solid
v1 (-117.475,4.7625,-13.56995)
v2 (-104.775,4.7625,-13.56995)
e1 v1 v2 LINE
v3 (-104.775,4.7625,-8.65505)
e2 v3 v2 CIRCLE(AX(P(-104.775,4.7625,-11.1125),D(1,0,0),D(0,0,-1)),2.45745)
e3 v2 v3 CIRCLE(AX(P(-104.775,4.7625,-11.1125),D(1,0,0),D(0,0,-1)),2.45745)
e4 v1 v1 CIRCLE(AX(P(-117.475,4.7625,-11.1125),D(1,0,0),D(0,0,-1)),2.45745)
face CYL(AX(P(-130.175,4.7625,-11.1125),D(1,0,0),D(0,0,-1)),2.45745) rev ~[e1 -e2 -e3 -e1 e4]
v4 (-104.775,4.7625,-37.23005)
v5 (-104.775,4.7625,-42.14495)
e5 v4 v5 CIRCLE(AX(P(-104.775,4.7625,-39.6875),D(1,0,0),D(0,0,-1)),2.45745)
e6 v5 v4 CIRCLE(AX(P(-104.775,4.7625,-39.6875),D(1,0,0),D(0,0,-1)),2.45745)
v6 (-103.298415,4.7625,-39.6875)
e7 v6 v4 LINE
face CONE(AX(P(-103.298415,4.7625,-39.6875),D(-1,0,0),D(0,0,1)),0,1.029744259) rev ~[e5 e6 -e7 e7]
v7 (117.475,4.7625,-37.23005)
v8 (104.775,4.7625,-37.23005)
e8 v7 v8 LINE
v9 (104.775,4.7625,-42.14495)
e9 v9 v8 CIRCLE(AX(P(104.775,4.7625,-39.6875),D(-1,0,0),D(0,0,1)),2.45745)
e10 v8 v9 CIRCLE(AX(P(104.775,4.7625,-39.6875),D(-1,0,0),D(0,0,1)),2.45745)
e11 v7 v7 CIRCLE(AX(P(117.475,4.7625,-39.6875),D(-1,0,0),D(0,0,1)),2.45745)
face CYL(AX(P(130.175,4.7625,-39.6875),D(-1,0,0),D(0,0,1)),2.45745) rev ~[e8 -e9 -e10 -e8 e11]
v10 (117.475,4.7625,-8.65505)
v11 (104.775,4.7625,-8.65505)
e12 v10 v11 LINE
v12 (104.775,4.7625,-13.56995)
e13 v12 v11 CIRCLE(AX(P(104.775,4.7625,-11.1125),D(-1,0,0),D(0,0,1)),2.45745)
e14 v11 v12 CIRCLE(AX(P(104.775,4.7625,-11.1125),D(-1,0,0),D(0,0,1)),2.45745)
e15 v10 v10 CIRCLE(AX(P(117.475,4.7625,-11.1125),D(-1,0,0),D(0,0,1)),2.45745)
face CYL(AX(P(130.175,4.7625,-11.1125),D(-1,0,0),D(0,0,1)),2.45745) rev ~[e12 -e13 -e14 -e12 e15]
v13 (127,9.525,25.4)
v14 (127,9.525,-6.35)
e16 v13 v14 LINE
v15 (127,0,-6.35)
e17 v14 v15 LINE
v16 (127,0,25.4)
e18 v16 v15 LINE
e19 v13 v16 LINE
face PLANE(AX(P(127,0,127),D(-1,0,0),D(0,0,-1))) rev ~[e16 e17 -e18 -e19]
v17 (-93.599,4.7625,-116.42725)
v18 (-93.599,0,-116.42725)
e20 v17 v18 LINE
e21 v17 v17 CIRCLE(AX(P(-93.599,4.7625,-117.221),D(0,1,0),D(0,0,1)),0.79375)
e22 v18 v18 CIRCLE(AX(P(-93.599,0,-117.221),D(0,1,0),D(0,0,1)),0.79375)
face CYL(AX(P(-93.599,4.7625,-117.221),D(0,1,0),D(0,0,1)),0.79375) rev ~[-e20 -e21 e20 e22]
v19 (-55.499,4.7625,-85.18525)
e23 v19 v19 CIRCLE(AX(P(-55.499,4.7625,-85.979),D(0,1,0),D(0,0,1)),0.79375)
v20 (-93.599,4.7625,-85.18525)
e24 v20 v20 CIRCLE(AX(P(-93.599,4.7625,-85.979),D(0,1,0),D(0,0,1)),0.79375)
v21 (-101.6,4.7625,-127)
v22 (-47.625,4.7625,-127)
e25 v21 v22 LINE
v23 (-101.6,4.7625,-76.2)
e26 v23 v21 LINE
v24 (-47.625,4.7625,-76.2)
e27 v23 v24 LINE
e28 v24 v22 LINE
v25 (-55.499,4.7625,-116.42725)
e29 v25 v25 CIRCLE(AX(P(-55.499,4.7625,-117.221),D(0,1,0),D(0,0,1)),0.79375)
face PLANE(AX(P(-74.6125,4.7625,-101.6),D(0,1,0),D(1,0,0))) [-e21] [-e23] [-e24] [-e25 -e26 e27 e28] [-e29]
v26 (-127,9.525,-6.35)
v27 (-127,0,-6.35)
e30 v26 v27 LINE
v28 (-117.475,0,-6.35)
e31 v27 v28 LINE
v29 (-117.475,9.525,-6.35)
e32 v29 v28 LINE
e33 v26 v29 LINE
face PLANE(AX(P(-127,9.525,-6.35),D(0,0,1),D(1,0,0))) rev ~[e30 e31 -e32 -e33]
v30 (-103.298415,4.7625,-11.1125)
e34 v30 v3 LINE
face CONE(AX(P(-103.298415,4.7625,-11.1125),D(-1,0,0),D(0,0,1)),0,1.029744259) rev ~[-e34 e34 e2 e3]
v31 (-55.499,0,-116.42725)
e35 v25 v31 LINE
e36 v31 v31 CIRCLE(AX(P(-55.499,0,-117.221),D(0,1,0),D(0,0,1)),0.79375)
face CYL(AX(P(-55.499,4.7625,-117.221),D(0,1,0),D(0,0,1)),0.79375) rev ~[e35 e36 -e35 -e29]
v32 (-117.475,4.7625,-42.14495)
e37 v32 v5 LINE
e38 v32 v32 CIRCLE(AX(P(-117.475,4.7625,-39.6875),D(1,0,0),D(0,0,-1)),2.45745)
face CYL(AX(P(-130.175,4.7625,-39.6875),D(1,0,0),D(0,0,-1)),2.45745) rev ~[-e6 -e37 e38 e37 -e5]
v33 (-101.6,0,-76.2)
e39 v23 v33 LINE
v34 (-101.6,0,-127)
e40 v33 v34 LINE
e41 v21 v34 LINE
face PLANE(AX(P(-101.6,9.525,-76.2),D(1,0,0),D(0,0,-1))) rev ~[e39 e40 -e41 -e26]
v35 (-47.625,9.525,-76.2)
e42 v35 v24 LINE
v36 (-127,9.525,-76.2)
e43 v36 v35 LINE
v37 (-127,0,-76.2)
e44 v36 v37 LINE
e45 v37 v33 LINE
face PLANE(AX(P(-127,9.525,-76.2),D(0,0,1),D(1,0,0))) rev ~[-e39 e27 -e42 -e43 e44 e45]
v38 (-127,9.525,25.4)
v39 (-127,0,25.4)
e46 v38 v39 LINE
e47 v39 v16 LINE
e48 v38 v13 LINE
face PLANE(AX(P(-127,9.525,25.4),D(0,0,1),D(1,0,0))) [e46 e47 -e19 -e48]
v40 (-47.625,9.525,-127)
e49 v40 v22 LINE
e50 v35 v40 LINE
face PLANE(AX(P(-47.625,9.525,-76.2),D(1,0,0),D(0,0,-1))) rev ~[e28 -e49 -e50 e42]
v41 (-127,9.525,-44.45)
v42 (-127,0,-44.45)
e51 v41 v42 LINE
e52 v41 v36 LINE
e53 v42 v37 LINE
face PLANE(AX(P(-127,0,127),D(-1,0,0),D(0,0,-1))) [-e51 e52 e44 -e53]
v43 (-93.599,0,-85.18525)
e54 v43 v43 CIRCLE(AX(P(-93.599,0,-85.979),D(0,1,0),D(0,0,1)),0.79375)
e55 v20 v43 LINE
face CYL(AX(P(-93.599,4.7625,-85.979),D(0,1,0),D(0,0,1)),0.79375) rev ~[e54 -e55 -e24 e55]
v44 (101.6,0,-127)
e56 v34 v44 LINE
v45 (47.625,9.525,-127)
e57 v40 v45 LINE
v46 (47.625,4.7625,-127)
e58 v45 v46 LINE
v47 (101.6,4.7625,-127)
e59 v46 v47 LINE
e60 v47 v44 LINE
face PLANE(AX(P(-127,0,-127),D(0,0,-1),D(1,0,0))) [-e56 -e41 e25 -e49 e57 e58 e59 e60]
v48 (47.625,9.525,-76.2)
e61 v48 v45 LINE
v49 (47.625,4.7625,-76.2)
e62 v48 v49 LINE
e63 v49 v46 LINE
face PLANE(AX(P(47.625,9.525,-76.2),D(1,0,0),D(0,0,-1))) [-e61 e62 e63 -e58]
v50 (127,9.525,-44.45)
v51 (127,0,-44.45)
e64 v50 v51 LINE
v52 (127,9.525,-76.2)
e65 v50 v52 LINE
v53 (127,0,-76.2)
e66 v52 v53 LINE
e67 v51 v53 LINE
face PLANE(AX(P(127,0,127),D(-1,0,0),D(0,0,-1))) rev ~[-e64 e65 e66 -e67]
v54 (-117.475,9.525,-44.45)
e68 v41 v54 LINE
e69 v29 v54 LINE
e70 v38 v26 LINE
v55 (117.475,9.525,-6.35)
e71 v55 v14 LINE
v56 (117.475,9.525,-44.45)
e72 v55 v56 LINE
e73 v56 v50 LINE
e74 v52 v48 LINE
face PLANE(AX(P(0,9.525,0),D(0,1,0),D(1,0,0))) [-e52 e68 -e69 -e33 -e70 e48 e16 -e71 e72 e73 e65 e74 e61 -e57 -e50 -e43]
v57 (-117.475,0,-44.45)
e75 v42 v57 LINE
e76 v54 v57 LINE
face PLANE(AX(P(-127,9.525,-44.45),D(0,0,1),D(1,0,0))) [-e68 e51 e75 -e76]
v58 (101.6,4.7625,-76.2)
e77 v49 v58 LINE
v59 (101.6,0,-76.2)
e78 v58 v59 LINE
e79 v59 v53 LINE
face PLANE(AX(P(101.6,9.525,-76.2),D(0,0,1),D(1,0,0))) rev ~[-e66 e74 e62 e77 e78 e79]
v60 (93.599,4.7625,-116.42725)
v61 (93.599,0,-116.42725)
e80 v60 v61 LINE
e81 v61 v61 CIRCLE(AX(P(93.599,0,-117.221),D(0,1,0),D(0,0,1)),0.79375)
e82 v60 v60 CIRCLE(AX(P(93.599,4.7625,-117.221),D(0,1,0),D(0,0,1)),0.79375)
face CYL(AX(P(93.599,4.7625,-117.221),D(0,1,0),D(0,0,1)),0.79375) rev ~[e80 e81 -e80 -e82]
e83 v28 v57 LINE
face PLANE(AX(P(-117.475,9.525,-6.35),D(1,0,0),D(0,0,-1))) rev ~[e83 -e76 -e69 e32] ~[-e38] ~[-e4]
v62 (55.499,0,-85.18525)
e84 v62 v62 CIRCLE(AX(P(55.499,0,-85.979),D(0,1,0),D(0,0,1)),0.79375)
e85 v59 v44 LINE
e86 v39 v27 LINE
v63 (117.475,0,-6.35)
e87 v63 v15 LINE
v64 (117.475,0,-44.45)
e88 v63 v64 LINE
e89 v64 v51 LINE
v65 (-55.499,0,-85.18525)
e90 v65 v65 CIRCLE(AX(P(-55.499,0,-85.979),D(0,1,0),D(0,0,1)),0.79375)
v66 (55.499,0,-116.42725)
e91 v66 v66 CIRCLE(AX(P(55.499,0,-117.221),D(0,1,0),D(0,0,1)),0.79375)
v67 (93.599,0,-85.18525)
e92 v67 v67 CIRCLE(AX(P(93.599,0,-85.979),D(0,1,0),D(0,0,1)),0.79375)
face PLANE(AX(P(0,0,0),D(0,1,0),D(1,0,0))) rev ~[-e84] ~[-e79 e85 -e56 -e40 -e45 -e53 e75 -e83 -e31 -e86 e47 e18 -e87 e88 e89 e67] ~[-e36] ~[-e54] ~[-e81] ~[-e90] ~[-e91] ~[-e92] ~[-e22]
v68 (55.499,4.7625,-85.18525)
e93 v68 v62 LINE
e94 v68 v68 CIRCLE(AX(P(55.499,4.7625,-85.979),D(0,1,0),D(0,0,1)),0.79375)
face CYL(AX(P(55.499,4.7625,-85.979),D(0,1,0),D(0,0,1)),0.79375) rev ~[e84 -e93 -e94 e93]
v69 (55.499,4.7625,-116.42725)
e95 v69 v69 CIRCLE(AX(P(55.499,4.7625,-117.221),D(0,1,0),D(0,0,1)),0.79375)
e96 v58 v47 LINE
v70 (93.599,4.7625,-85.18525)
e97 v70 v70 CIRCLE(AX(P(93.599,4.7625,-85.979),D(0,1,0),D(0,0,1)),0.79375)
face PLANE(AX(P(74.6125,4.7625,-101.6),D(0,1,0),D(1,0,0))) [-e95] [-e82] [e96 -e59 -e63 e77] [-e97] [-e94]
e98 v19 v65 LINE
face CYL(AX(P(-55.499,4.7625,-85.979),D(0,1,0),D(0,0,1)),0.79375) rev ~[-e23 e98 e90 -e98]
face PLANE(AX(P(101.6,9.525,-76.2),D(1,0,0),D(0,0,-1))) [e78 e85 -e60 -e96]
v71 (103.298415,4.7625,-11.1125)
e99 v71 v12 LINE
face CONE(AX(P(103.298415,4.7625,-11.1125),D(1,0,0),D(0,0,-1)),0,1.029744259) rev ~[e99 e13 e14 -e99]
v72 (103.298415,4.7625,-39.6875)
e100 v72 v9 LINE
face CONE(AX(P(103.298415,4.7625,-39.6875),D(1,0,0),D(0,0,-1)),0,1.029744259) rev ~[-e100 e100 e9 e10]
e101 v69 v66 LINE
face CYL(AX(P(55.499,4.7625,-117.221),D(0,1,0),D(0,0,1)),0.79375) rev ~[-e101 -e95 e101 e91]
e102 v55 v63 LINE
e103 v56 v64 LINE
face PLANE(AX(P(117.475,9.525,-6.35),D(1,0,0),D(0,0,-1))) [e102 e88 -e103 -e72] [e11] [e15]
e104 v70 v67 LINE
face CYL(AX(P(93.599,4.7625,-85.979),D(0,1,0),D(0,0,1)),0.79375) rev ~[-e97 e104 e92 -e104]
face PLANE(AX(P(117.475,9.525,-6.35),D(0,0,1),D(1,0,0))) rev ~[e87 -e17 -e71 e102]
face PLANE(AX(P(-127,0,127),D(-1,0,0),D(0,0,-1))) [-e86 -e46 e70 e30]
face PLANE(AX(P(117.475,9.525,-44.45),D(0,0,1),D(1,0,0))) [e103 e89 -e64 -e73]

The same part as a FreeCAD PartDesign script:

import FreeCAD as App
import Part
import Sketcher
Q = App.Units.Quantity


def add_polygon(sketch, points):
    """Adds a closed chain of lines whose ends are joined by coincident constraints."""
    first, n = sketch.GeometryCount, len(points)
    for a, b in zip(points, points[1:] + points[:1]):
        sketch.addGeometry(Part.LineSegment(App.Vector(*a, 0), App.Vector(*b, 0)), False)
    for i in range(n):
        sketch.addConstraint(Sketcher.Constraint("Coincident", first + i, 2, first + (i + 1) % n, 1))

doc = App.newDocument("Part")
params = doc.addObject("Spreadsheet::Sheet", "Params")
for row, (alias, value) in enumerate([
    ("sketch1_width", "10 in"),
    ("pad1_length", "0.375 in"),
    ("sketch2_width", "1 in"),
    ("sketch2_height", "2 in"),
    ("sketch3_height", "2 in"),
    ("sketch3_width", "2.125 in"),
    ("pocket2_length", "0.1875 in"),
    ("sketch4_height", "1.5 in"),
    ("sketch4_width", "0.375 in"),
    ("hole_diameter", "0.1935 in"),
    ("hole_depth", "0.5 in"),
    ("hole2_diameter", "0.1935 in"),
    ("hole2_depth", "0.5 in"),
    ("sketch7_diameter", "0.0625 in"),
    ("sketch8_width", "10 in"),
    ("sketch8_height", "4 in"),
], start=1):
    params.set(f"A{row}", alias)
    params.set(f"B{row}", "=" + value)
    params.setAlias(f"B{row}", alias)

body = doc.addObject("PartDesign::Body", "Body")

sketch1 = body.newObject("Sketcher::SketchObject", "Sketch")
sketch1.AttachmentSupport = (doc.getObject("XZ_Plane"), [""])
sketch1.MapMode = "FlatFace"
add_polygon(sketch1, [(-127, -127), (-127, 127), (127, 127), (127, -127)])
sketch1.addConstraint([
    Sketcher.Constraint("Vertical", 0),
    Sketcher.Constraint("Horizontal", 1),
    Sketcher.Constraint("Vertical", 2),
    Sketcher.Constraint("Horizontal", 3),
    Sketcher.Constraint("Symmetric", 0, 2, 2, 2, -1, 1),
    Sketcher.Constraint("Equal", 3, 0),
    Sketcher.Constraint("DistanceX", 1, 1, 1, 2, Q("10 in")),
])
sketch1.setExpression("Constraints[10]", "Params.sketch1_width")
pad1 = body.newObject("PartDesign::Pad", "Pad")
pad1.Profile = sketch1
pad1.setExpression("Length", "Params.pad1_length")
pad1.Reversed = True

sketch2 = body.newObject("Sketcher::SketchObject", "Sketch001")
sketch2.AttachmentSupport = (doc.getObject("XZ_Plane"), [""])
sketch2.MapMode = "FlatFace"
sketch2.AttachmentOffset = App.Placement(App.Vector(0, 0, -0.375 * 25.4), App.Rotation())
add_polygon(sketch2, [(-127, -127), (-127, -76), (-102, -76), (-102, -127)])
add_polygon(sketch2, [(102, -127), (102, -76), (127, -76), (127, -127)])
sketch2.addConstraint([
    Sketcher.Constraint("Vertical", 0),
    Sketcher.Constraint("Horizontal", 1),
    Sketcher.Constraint("Vertical", 2),
    Sketcher.Constraint("Horizontal", 3),
    Sketcher.Constraint("Vertical", 4),
    Sketcher.Constraint("Horizontal", 5),
    Sketcher.Constraint("Vertical", 6),
    Sketcher.Constraint("Horizontal", 7),
    Sketcher.Constraint("Symmetric", 1, 2, 4, 2, -2),
    Sketcher.Constraint("Symmetric", 3, 2, 6, 2, -2),
    Sketcher.Constraint("DistanceX", 1, 1, 1, 2, Q("1 in")),
    Sketcher.Constraint("DistanceY", 0, 1, 0, 2, Q("2 in")),
    Sketcher.Constraint("DistanceX", 0, 2, -1, 1, Q("5 in")),
    Sketcher.Constraint("DistanceY", 0, 2, -1, 1, Q("3 in")),
])
sketch2.setExpression("Constraints[18]", "Params.sketch2_width")
sketch2.setExpression("Constraints[19]", "Params.sketch2_height")
pocket1 = body.newObject("PartDesign::Pocket", "Pocket")
pocket1.Profile = sketch2
pocket1.Type = "ThroughAll"
pocket1.Reversed = True

sketch3 = body.newObject("Sketcher::SketchObject", "Sketch002")
sketch3.AttachmentSupport = (doc.getObject("XZ_Plane"), [""])
sketch3.MapMode = "FlatFace"
sketch3.AttachmentOffset = App.Placement(App.Vector(0, 0, -0.375 * 25.4), App.Rotation())
add_polygon(sketch3, [(-102, -127), (-102, -76), (-48, -76), (-48, -127)])
add_polygon(sketch3, [(48, -127), (48, -76), (102, -76), (102, -127)])
sketch3.addConstraint([
    Sketcher.Constraint("Vertical", 0),
    Sketcher.Constraint("Horizontal", 1),
    Sketcher.Constraint("Vertical", 2),
    Sketcher.Constraint("Horizontal", 3),
    Sketcher.Constraint("Vertical", 4),
    Sketcher.Constraint("Horizontal", 5),
    Sketcher.Constraint("Vertical", 6),
    Sketcher.Constraint("Horizontal", 7),
    Sketcher.Constraint("Symmetric", 1, 2, 4, 2, -2),
    Sketcher.Constraint("Symmetric", 3, 2, 6, 2, -2),
    Sketcher.Constraint("DistanceY", 0, 1, 0, 2, Q("2 in")),
    Sketcher.Constraint("DistanceX", 0, 2, -1, 1, Q("4 in")),
    Sketcher.Constraint("DistanceY", 0, 2, -1, 1, Q("3 in")),
    Sketcher.Constraint("DistanceX", 1, 1, 1, 2, Q("2.125 in")),
])
sketch3.setExpression("Constraints[18]", "Params.sketch3_height")
sketch3.setExpression("Constraints[21]", "Params.sketch3_width")
pocket2 = body.newObject("PartDesign::Pocket", "Pocket001")
pocket2.Profile = sketch3
pocket2.setExpression("Length", "Params.pocket2_length")
pocket2.Reversed = True

sketch4 = body.newObject("Sketcher::SketchObject", "Sketch003")
sketch4.AttachmentSupport = (doc.getObject("XZ_Plane"), [""])
sketch4.MapMode = "FlatFace"
sketch4.AttachmentOffset = App.Placement(App.Vector(0, 0, -0.375 * 25.4), App.Rotation())
add_polygon(sketch4, [(-127, -44), (-127, -6), (-117, -6), (-117, -44)])
add_polygon(sketch4, [(117, -44), (117, -6), (127, -6), (127, -44)])
sketch4.addConstraint([
    Sketcher.Constraint("Vertical", 0),
    Sketcher.Constraint("Horizontal", 1),
    Sketcher.Constraint("Vertical", 2),
    Sketcher.Constraint("Horizontal", 3),
    Sketcher.Constraint("Vertical", 4),
    Sketcher.Constraint("Horizontal", 5),
    Sketcher.Constraint("Vertical", 6),
    Sketcher.Constraint("Horizontal", 7),
    Sketcher.Constraint("Symmetric", 1, 2, 4, 2, -2),
    Sketcher.Constraint("Symmetric", 3, 2, 6, 2, -2),
    Sketcher.Constraint("DistanceY", 0, 1, 0, 2, Q("1.5 in")),
    Sketcher.Constraint("DistanceX", 0, 2, -1, 1, Q("5 in")),
    Sketcher.Constraint("DistanceX", 1, 1, 1, 2, Q("0.375 in")),
    Sketcher.Constraint("DistanceY", 0, 2, -1, 1, Q("0.25 in")),
])
sketch4.setExpression("Constraints[18]", "Params.sketch4_height")
sketch4.setExpression("Constraints[20]", "Params.sketch4_width")
pocket3 = body.newObject("PartDesign::Pocket", "Pocket002")
pocket3.Profile = sketch4
pocket3.Type = "ThroughAll"
pocket3.Reversed = True

sketch5 = body.newObject("Sketcher::SketchObject", "Sketch004")
sketch5.AttachmentSupport = (doc.getObject("YZ_Plane"), [""])
sketch5.MapMode = "FlatFace"
sketch5.AttachmentOffset = App.Placement(App.Vector(0, 0, 4.625 * 25.4), App.Rotation())
sketch5.addGeometry([
    Part.Circle(App.Vector(4.8, -11.1, 0), App.Vector(0, 0, 1), 2.5),
    Part.Circle(App.Vector(4.8, -39.7, 0), App.Vector(0, 0, 1), 2.5),
], False)
sketch5.addConstraint([
    Sketcher.Constraint("Equal", 0, 1),
    Sketcher.Constraint("Vertical", 0, 3, 1, 3),
    Sketcher.Constraint("Diameter", 0, Q("0.1935 in")),
    Sketcher.Constraint("DistanceX", -1, 1, 0, 3, Q("0.1875 in")),
    Sketcher.Constraint("DistanceY", 0, 3, -1, 1, Q("0.4375 in")),
    Sketcher.Constraint("DistanceY", 1, 3, -1, 1, Q("1.5625 in")),
])
doc.recompute()
hole = body.newObject("PartDesign::Hole", "Hole")
hole.Profile = sketch5
hole.ThreadType = "None"
hole.setExpression("Diameter", "Params.hole_diameter")
hole.DepthType = "Dimension"
hole.setExpression("Depth", "Params.hole_depth")
hole.DrillPoint = "Angled"
hole.DrillPointAngle = 118

sketch6 = body.newObject("Sketcher::SketchObject", "Sketch005")
sketch6.AttachmentSupport = (doc.getObject("YZ_Plane"), [""])
sketch6.MapMode = "FlatFace"
sketch6.AttachmentOffset = App.Placement(App.Vector(0, 0, -4.625 * 25.4), App.Rotation())
sketch6.addGeometry([
    Part.Circle(App.Vector(4.8, -39.7, 0), App.Vector(0, 0, 1), 2.5),
    Part.Circle(App.Vector(4.8, -11.1, 0), App.Vector(0, 0, 1), 2.5),
], False)
sketch6.addConstraint([
    Sketcher.Constraint("Equal", 0, 1),
    Sketcher.Constraint("Vertical", 0, 3, 1, 3),
    Sketcher.Constraint("Diameter", 0, Q("0.1935 in")),
    Sketcher.Constraint("DistanceX", -1, 1, 0, 3, Q("0.1875 in")),
    Sketcher.Constraint("DistanceY", 0, 3, -1, 1, Q("1.5625 in")),
    Sketcher.Constraint("DistanceY", 1, 3, -1, 1, Q("0.4375 in")),
])
doc.recompute()
hole2 = body.newObject("PartDesign::Hole", "Hole001")
hole2.Profile = sketch6
hole2.ThreadType = "None"
hole2.setExpression("Diameter", "Params.hole2_diameter")
hole2.DepthType = "Dimension"
hole2.setExpression("Depth", "Params.hole2_depth")
hole2.DrillPoint = "Angled"
hole2.DrillPointAngle = 118
hole2.Reversed = True

sketch7 = body.newObject("Sketcher::SketchObject", "Sketch006")
sketch7.AttachmentSupport = (doc.getObject("XZ_Plane"), [""])
sketch7.MapMode = "FlatFace"
sketch7.AttachmentOffset = App.Placement(App.Vector(0, 0, -0.1875 * 25.4), App.Rotation())
sketch7.addGeometry([
    Part.Circle(App.Vector(93.6, -117.2, 0), App.Vector(0, 0, 1), 0.8),
    Part.Circle(App.Vector(55.5, -117.2, 0), App.Vector(0, 0, 1), 0.8),
    Part.Circle(App.Vector(55.5, -86, 0), App.Vector(0, 0, 1), 0.8),
    Part.Circle(App.Vector(93.6, -86, 0), App.Vector(0, 0, 1), 0.8),
    Part.Circle(App.Vector(-93.6, -86, 0), App.Vector(0, 0, 1), 0.8),
    Part.Circle(App.Vector(-55.5, -86, 0), App.Vector(0, 0, 1), 0.8),
    Part.Circle(App.Vector(-55.5, -117.2, 0), App.Vector(0, 0, 1), 0.8),
    Part.Circle(App.Vector(-93.6, -117.2, 0), App.Vector(0, 0, 1), 0.8),
], False)
sketch7.addConstraint([
    Sketcher.Constraint("Equal", 0, 1),
    Sketcher.Constraint("Equal", 1, 2),
    Sketcher.Constraint("Equal", 2, 3),
    Sketcher.Constraint("Equal", 3, 4),
    Sketcher.Constraint("Equal", 4, 5),
    Sketcher.Constraint("Equal", 5, 6),
    Sketcher.Constraint("Equal", 6, 7),
    Sketcher.Constraint("Symmetric", 3, 3, 4, 3, -2),
    Sketcher.Constraint("Symmetric", 2, 3, 5, 3, -2),
    Sketcher.Constraint("Symmetric", 1, 3, 6, 3, -2),
    Sketcher.Constraint("Symmetric", 0, 3, 7, 3, -2),
    Sketcher.Constraint("Horizontal", 0, 3, 1, 3),
    Sketcher.Constraint("Horizontal", 2, 3, 3, 3),
    Sketcher.Constraint("Vertical", 1, 3, 2, 3),
    Sketcher.Constraint("Vertical", 0, 3, 3, 3),
    Sketcher.Constraint("Diameter", 0, Q("0.0625 in")),
    Sketcher.Constraint("DistanceX", 1, 3, 0, 3, Q("1.5 in")),
    Sketcher.Constraint("DistanceY", 1, 3, 2, 3, Q("1.23 in")),
    Sketcher.Constraint("DistanceX", 4, 3, 2, 3, Q("5.87 in")),
    Sketcher.Constraint("DistanceY", 0, 3, -1, 1, Q("4.615 in")),
])
sketch7.setExpression("Constraints[15]", "Params.sketch7_diameter")
pocket4 = body.newObject("PartDesign::Pocket", "Pocket003")
pocket4.Profile = sketch7
pocket4.Type = "ThroughAll"
pocket4.Reversed = True

sketch8 = body.newObject("Sketcher::SketchObject", "Sketch007")
sketch8.AttachmentSupport = (doc.getObject("XZ_Plane"), [""])
sketch8.MapMode = "FlatFace"
sketch8.AttachmentOffset = App.Placement(App.Vector(0, 0, -0.375 * 25.4), App.Rotation())
add_polygon(sketch8, [(-127, 25), (-127, 127), (127, 127), (127, 25)])
sketch8.addConstraint([
    Sketcher.Constraint("Vertical", 0),
    Sketcher.Constraint("Horizontal", 1),
    Sketcher.Constraint("Vertical", 2),
    Sketcher.Constraint("Horizontal", 3),
    Sketcher.Constraint("DistanceX", 1, 1, 1, 2, Q("10 in")),
    Sketcher.Constraint("DistanceY", 0, 1, 0, 2, Q("4 in")),
    Sketcher.Constraint("DistanceX", 0, 2, -1, 1, Q("5 in")),
    Sketcher.Constraint("DistanceY", -1, 1, 0, 2, Q("5 in")),
])
sketch8.setExpression("Constraints[8]", "Params.sketch8_width")
sketch8.setExpression("Constraints[9]", "Params.sketch8_height")
pocket5 = body.newObject("PartDesign::Pocket", "Pocket004")
pocket5.Profile = sketch8
pocket5.Type = "ThroughAll"
pocket5.Reversed = True

doc.recompute()
